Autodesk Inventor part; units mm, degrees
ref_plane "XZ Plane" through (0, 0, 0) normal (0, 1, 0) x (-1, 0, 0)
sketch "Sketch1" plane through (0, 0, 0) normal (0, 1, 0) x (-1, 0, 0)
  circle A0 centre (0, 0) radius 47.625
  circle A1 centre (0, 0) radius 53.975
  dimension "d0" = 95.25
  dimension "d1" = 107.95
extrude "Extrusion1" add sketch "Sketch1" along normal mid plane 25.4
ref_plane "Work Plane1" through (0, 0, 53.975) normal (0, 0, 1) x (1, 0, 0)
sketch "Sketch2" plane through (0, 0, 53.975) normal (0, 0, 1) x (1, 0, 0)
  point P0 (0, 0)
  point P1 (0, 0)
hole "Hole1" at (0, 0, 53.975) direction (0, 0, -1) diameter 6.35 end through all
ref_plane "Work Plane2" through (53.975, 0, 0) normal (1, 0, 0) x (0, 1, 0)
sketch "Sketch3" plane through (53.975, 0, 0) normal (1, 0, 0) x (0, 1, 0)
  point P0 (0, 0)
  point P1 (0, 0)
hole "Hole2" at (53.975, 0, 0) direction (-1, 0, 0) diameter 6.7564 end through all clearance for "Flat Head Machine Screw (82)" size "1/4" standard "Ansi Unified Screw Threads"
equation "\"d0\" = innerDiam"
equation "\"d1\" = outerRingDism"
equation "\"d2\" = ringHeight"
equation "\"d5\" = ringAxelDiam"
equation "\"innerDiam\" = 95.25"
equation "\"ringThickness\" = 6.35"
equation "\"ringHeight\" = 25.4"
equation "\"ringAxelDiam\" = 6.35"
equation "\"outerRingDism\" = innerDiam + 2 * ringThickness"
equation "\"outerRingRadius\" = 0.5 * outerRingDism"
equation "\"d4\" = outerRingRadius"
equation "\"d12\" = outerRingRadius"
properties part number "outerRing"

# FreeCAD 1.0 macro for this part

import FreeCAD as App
import Part
import Sketcher
Q = App.Units.Quantity

doc = App.newDocument("Part")
body = doc.addObject("PartDesign::Body", "Body")

sketch1 = body.newObject("Sketcher::SketchObject", "Sketch")
sketch1.AttachmentSupport = (doc.getObject("XZ_Plane"), [""])
sketch1.MapMode = "FlatFace"
sketch1.addGeometry(Part.Circle(App.Vector(0, 0, 0), App.Vector(0, 0, 1), 54), False)
sketch1.addGeometry(Part.Circle(App.Vector(0, 0, 0), App.Vector(0, 0, 1), 48), False)
sketch1.addConstraint(Sketcher.Constraint("Coincident", 0, 3, -1, 1))
sketch1.addConstraint(Sketcher.Constraint("Coincident", 1, 3, -1, 1))
sketch1.addConstraint(Sketcher.Constraint("Diameter", 0, Q("4.25 in")))
sketch1.addConstraint(Sketcher.Constraint("Diameter", 1, Q("3.75 in")))
pad1 = body.newObject("PartDesign::Pad", "Pad")
pad1.Profile = sketch1
pad1.Length = Q("1 in")
pad1.Midplane = True

sketch2 = body.newObject("Sketcher::SketchObject", "Sketch001")
sketch2.AttachmentSupport = (doc.getObject("XY_Plane"), [""])
sketch2.MapMode = "FlatFace"
sketch2.AttachmentOffset = App.Placement(App.Vector(0, 0, 2.125 * 25.4), App.Rotation())
sketch2.addGeometry(Part.Circle(App.Vector(0, 0, 0), App.Vector(0, 0, 1), 3.2), False)
sketch2.addConstraint(Sketcher.Constraint("Coincident", 0, 3, -1, 1))
sketch2.addConstraint(Sketcher.Constraint("Diameter", 0, Q("0.25 in")))
doc.recompute()
hole = body.newObject("PartDesign::Hole", "Hole")
hole.Profile = sketch2
hole.ThreadType = "None"
hole.Diameter = Q("0.25 in")
hole.DepthType = "ThroughAll"

sketch3 = body.newObject("Sketcher::SketchObject", "Sketch002")
sketch3.AttachmentSupport = (doc.getObject("YZ_Plane"), [""])
sketch3.MapMode = "FlatFace"
sketch3.AttachmentOffset = App.Placement(App.Vector(0, 0, 2.125 * 25.4), App.Rotation())
sketch3.addGeometry(Part.Circle(App.Vector(0, 0, 0), App.Vector(0, 0, 1), 3.4), False)
sketch3.addConstraint(Sketcher.Constraint("Coincident", 0, 3, -1, 1))
sketch3.addConstraint(Sketcher.Constraint("Diameter", 0, Q("0.266 in")))
doc.recompute()
hole2 = body.newObject("PartDesign::Hole", "Hole001")
hole2.Profile = sketch3
hole2.ThreadType = "None"
hole2.Diameter = Q("0.266 in")
hole2.DepthType = "ThroughAll"

doc.recompute()
